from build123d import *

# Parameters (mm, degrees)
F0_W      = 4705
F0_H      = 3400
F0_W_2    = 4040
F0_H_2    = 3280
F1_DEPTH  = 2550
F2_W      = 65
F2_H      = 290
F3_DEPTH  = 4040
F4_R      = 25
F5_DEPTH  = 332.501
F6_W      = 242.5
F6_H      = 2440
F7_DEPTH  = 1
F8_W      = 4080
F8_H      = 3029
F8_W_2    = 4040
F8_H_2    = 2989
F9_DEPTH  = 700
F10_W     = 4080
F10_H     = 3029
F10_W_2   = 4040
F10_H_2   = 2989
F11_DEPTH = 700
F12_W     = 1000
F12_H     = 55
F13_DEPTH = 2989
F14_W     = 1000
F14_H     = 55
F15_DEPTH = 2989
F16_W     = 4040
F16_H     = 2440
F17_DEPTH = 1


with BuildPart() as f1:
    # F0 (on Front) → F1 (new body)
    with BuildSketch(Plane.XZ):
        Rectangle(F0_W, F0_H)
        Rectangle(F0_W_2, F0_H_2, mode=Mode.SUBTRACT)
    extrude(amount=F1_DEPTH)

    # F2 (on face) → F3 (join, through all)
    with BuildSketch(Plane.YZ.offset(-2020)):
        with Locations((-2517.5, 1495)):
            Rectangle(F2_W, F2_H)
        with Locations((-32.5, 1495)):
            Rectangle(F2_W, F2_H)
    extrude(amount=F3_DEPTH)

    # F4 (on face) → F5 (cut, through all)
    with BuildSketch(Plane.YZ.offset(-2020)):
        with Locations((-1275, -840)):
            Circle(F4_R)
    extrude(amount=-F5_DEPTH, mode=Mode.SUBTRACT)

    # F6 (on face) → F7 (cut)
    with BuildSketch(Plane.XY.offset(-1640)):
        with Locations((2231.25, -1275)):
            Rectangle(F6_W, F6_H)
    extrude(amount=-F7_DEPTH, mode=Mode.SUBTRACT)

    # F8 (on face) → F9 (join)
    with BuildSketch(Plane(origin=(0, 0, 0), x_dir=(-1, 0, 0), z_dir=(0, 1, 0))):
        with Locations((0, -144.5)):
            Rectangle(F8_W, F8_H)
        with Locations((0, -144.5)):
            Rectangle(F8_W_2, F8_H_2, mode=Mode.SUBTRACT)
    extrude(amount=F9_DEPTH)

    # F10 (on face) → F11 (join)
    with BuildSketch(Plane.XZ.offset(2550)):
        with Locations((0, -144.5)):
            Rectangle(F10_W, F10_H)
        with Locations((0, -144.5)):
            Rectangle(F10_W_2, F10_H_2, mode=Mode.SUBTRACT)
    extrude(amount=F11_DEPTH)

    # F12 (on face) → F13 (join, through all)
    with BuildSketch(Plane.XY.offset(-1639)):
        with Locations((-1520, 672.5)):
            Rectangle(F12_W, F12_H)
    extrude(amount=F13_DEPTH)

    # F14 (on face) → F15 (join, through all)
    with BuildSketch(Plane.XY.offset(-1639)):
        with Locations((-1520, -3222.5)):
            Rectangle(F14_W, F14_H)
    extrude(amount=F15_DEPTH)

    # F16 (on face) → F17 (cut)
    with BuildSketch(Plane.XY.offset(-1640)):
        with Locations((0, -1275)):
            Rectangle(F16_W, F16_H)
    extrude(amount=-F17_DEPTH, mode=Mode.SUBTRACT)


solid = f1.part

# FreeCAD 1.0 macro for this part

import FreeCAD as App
import Part
import Sketcher
from FreeCAD import Vector
Q = App.Units.Quantity

doc = App.newDocument("Part")
params = doc.addObject("Spreadsheet::Sheet", "Params")
for row, (alias, value) in enumerate([
    ("sketch1_width", "4705 mm"),
    ("sketch1_width2", "4040 mm"),
    ("sketch1_height", "3400 mm"),
    ("sketch1_height2", "3280 mm"),
    ("pad1_length", "2550 mm"),
    ("sketch2_width", "65 mm"),
    ("sketch2_height", "290 mm"),
    ("sketch3_diameter", "50 mm"),
    ("sketch4_height", "2440 mm"),
    ("sketch4_width", "242.5 mm"),
    ("pocket2_length", "1 mm"),
    ("sketch5_width", "4080 mm"),
    ("sketch5_width2", "4040 mm"),
    ("sketch5_height", "3029 mm"),
    ("sketch5_height2", "2989 mm"),
    ("pad3_length", "700 mm"),
    ("sketch6_width", "4080 mm"),
    ("sketch6_width2", "4040 mm"),
    ("sketch6_height", "3029 mm"),
    ("sketch6_height2", "2989 mm"),
    ("pad4_length", "700 mm"),
    ("sketch7_width", "1000 mm"),
    ("sketch7_height", "55 mm"),
    ("sketch8_width", "1000 mm"),
    ("sketch8_height", "55 mm"),
    ("sketch9_width", "4040 mm"),
    ("sketch9_height", "2440 mm"),
    ("pocket3_length", "1 mm"),
], start=1):
    params.set(f"A{row}", alias)
    params.set(f"B{row}", "=" + value)
    params.setAlias(f"B{row}", alias)

body = doc.addObject("PartDesign::Body", "Body")

# Sketch on XZ plane
sketch1 = doc.addObject("Sketcher::SketchObject", "Sketch")
body.addObject(sketch1)
sketch1.AttachmentSupport = (doc.XZ_Plane, [""])
sketch1.MapMode = "FlatFace"
sketch1.addGeometry(Part.LineSegment(Vector(-2352, 1700, 0), Vector(-2352, -1700, 0)), False)
sketch1.addGeometry(Part.LineSegment(Vector(-2352, -1700, 0), Vector(2352, -1700, 0)), False)
sketch1.addGeometry(Part.LineSegment(Vector(2352, -1700, 0), Vector(2352, 1700, 0)), False)
sketch1.addGeometry(Part.LineSegment(Vector(2352, 1700, 0), Vector(-2352, 1700, 0)), False)
sketch1.addGeometry(Part.LineSegment(Vector(2020, -1640, 0), Vector(-2020, -1640, 0)), False)
sketch1.addGeometry(Part.LineSegment(Vector(-2020, -1640, 0), Vector(-2020, 1640, 0)), False)
sketch1.addGeometry(Part.LineSegment(Vector(-2020, 1640, 0), Vector(2020, 1640, 0)), False)
sketch1.addGeometry(Part.LineSegment(Vector(2020, 1640, 0), Vector(2020, -1640, 0)), False)
sketch1.addConstraint(Sketcher.Constraint("Coincident", 0, 2, 1, 1))
sketch1.addConstraint(Sketcher.Constraint("Coincident", 1, 2, 2, 1))
sketch1.addConstraint(Sketcher.Constraint("Coincident", 2, 2, 3, 1))
sketch1.addConstraint(Sketcher.Constraint("Coincident", 3, 2, 0, 1))
sketch1.addConstraint(Sketcher.Constraint("Coincident", 4, 2, 5, 1))
sketch1.addConstraint(Sketcher.Constraint("Coincident", 5, 2, 6, 1))
sketch1.addConstraint(Sketcher.Constraint("Coincident", 6, 2, 7, 1))
sketch1.addConstraint(Sketcher.Constraint("Coincident", 7, 2, 4, 1))
sketch1.addConstraint(Sketcher.Constraint("Vertical", 0))
sketch1.addConstraint(Sketcher.Constraint("Horizontal", 1))
sketch1.addConstraint(Sketcher.Constraint("Vertical", 2))
sketch1.addConstraint(Sketcher.Constraint("Horizontal", 3))
sketch1.addConstraint(Sketcher.Constraint("Horizontal", 4))
sketch1.addConstraint(Sketcher.Constraint("Vertical", 5))
sketch1.addConstraint(Sketcher.Constraint("Horizontal", 6))
sketch1.addConstraint(Sketcher.Constraint("Vertical", 7))
sketch1.addConstraint(Sketcher.Constraint("Symmetric", 0, 2, 2, 2, -1, 1))
sketch1.addConstraint(Sketcher.Constraint("Symmetric", 4, 2, 6, 2, -1, 1))
sketch1.addConstraint(Sketcher.Constraint("DistanceX", 1, 1, 1, 2, Q("4705 mm")))
sketch1.addConstraint(Sketcher.Constraint("DistanceX", 4, 2, 4, 1, Q("4040 mm")))
sketch1.addConstraint(Sketcher.Constraint("DistanceY", 0, 2, 0, 1, Q("3400 mm")))
sketch1.addConstraint(Sketcher.Constraint("DistanceY", 5, 1, 5, 2, Q("3280 mm")))
sketch1.setExpression("Constraints[18]", "Params.sketch1_width")
sketch1.setExpression("Constraints[19]", "Params.sketch1_width2")
sketch1.setExpression("Constraints[20]", "Params.sketch1_height")
sketch1.setExpression("Constraints[21]", "Params.sketch1_height2")
pad1 = doc.addObject("PartDesign::Pad", "Pad")
body.addObject(pad1)
pad1.Profile = sketch1
pad1.setExpression("Length", "Params.pad1_length")

# Sketch on YZ plane
sketch2 = doc.addObject("Sketcher::SketchObject", "Sketch001")
body.addObject(sketch2)
sketch2.AttachmentSupport = (doc.YZ_Plane, [""])
sketch2.MapMode = "FlatFace"
sketch2.AttachmentOffset = App.Placement(Vector(0, 0, -2020), App.Rotation())
sketch2.addGeometry(Part.LineSegment(Vector(-2550, 1640, 0), Vector(-2550, 1350, 0)), False)
sketch2.addGeometry(Part.LineSegment(Vector(-2550, 1350, 0), Vector(-2485, 1350, 0)), False)
sketch2.addGeometry(Part.LineSegment(Vector(-2485, 1350, 0), Vector(-2485, 1640, 0)), False)
sketch2.addGeometry(Part.LineSegment(Vector(-2485, 1640, 0), Vector(-2550, 1640, 0)), False)
sketch2.addGeometry(Part.LineSegment(Vector(-65, 1640, 0), Vector(-65, 1350, 0)), False)
sketch2.addGeometry(Part.LineSegment(Vector(-65, 1350, 0), Vector(0, 1350, 0)), False)
sketch2.addGeometry(Part.LineSegment(Vector(0, 1350, 0), Vector(0, 1640, 0)), False)
sketch2.addGeometry(Part.LineSegment(Vector(0, 1640, 0), Vector(-65, 1640, 0)), False)
sketch2.addConstraint(Sketcher.Constraint("Coincident", 0, 2, 1, 1))
sketch2.addConstraint(Sketcher.Constraint("Coincident", 1, 2, 2, 1))
sketch2.addConstraint(Sketcher.Constraint("Coincident", 2, 2, 3, 1))
sketch2.addConstraint(Sketcher.Constraint("Coincident", 3, 2, 0, 1))
sketch2.addConstraint(Sketcher.Constraint("Coincident", 4, 2, 5, 1))
sketch2.addConstraint(Sketcher.Constraint("Coincident", 5, 2, 6, 1))
sketch2.addConstraint(Sketcher.Constraint("Coincident", 6, 2, 7, 1))
sketch2.addConstraint(Sketcher.Constraint("Coincident", 7, 2, 4, 1))
sketch2.addConstraint(Sketcher.Constraint("Vertical", 0))
sketch2.addConstraint(Sketcher.Constraint("Horizontal", 1))
sketch2.addConstraint(Sketcher.Constraint("Vertical", 2))
sketch2.addConstraint(Sketcher.Constraint("Horizontal", 3))
sketch2.addConstraint(Sketcher.Constraint("Vertical", 4))
sketch2.addConstraint(Sketcher.Constraint("Horizontal", 5))
sketch2.addConstraint(Sketcher.Constraint("Vertical", 6))
sketch2.addConstraint(Sketcher.Constraint("Horizontal", 7))
sketch2.addConstraint(Sketcher.Constraint("PointOnObject", 5, 2, -2))
sketch2.addConstraint(Sketcher.Constraint("Horizontal", 1, 2, 4, 2))
sketch2.addConstraint(Sketcher.Constraint("Horizontal", 3, 2, 6, 2))
sketch2.addConstraint(Sketcher.Constraint("Equal", 3, 5))
sketch2.addConstraint(Sketcher.Constraint("DistanceX", 1, 1, 1, 2, Q("65 mm")))
sketch2.addConstraint(Sketcher.Constraint("DistanceY", 0, 2, 0, 1, Q("290 mm")))
sketch2.addConstraint(Sketcher.Constraint("DistanceX", 0, 2, -1, 1, Q("2550 mm")))
sketch2.addConstraint(Sketcher.Constraint("DistanceY", -1, 1, 0, 2, Q("1350 mm")))
sketch2.setExpression("Constraints[20]", "Params.sketch2_width")
sketch2.setExpression("Constraints[21]", "Params.sketch2_height")
pad2 = doc.addObject("PartDesign::Pad", "Pad001")
body.addObject(pad2)
pad2.Profile = sketch2
pad2.Type = "UpToLast"

# Sketch on YZ plane
sketch3 = doc.addObject("Sketcher::SketchObject", "Sketch002")
body.addObject(sketch3)
sketch3.AttachmentSupport = (doc.YZ_Plane, [""])
sketch3.MapMode = "FlatFace"
sketch3.AttachmentOffset = App.Placement(Vector(0, 0, -2020), App.Rotation())
sketch3.addGeometry(Part.Circle(Vector(-1275, -840, 0), Vector(0, 0, 1), 25), False)
sketch3.addConstraint(Sketcher.Constraint("Diameter", 0, Q("50 mm")))
sketch3.addConstraint(Sketcher.Constraint("DistanceX", 0, 3, -1, 1, Q("1275 mm")))
sketch3.addConstraint(Sketcher.Constraint("DistanceY", 0, 3, -1, 1, Q("840 mm")))
sketch3.setExpression("Constraints[0]", "Params.sketch3_diameter")
pocket1 = doc.addObject("PartDesign::Pocket", "Pocket")
body.addObject(pocket1)
pocket1.Profile = sketch3
pocket1.Type = "ThroughAll"

# Sketch on XY plane
sketch4 = doc.addObject("Sketcher::SketchObject", "Sketch003")
body.addObject(sketch4)
sketch4.AttachmentSupport = (doc.XY_Plane, [""])
sketch4.MapMode = "FlatFace"
sketch4.AttachmentOffset = App.Placement(Vector(0, 0, -1640), App.Rotation())
sketch4.addGeometry(Part.LineSegment(Vector(2110, -55, 0), Vector(2110, -2495, 0)), False)
sketch4.addGeometry(Part.LineSegment(Vector(2110, -2495, 0), Vector(2352, -2495, 0)), False)
sketch4.addGeometry(Part.LineSegment(Vector(2352, -2495, 0), Vector(2352, -55, 0)), False)
sketch4.addGeometry(Part.LineSegment(Vector(2352, -55, 0), Vector(2110, -55, 0)), False)
sketch4.addConstraint(Sketcher.Constraint("Coincident", 0, 2, 1, 1))
sketch4.addConstraint(Sketcher.Constraint("Coincident", 1, 2, 2, 1))
sketch4.addConstraint(Sketcher.Constraint("Coincident", 2, 2, 3, 1))
sketch4.addConstraint(Sketcher.Constraint("Coincident", 3, 2, 0, 1))
sketch4.addConstraint(Sketcher.Constraint("Vertical", 0))
sketch4.addConstraint(Sketcher.Constraint("Horizontal", 1))
sketch4.addConstraint(Sketcher.Constraint("Vertical", 2))
sketch4.addConstraint(Sketcher.Constraint("Horizontal", 3))
sketch4.addConstraint(Sketcher.Constraint("DistanceY", 0, 2, 0, 1, Q("2440 mm")))
sketch4.addConstraint(Sketcher.Constraint("DistanceX", 1, 1, 1, 2, Q("242.5 mm")))
sketch4.addConstraint(Sketcher.Constraint("DistanceX", -1, 1, 0, 2, Q("2110 mm")))
sketch4.addConstraint(Sketcher.Constraint("DistanceY", 0, 2, -1, 1, Q("2495 mm")))
sketch4.setExpression("Constraints[8]", "Params.sketch4_height")
sketch4.setExpression("Constraints[9]", "Params.sketch4_width")
pocket2 = doc.addObject("PartDesign::Pocket", "Pocket001")
body.addObject(pocket2)
pocket2.Profile = sketch4
pocket2.setExpression("Length", "Params.pocket2_length")

# Sketch on XZ plane
sketch5 = doc.addObject("Sketcher::SketchObject", "Sketch004")
body.addObject(sketch5)
sketch5.AttachmentSupport = (doc.XZ_Plane, [""])
sketch5.MapMode = "FlatFace"
sketch5.addGeometry(Part.LineSegment(Vector(2040, 1370, 0), Vector(2040, -1659, 0)), False)
sketch5.addGeometry(Part.LineSegment(Vector(2040, -1659, 0), Vector(-2040, -1659, 0)), False)
sketch5.addGeometry(Part.LineSegment(Vector(-2040, -1659, 0), Vector(-2040, 1370, 0)), False)
sketch5.addGeometry(Part.LineSegment(Vector(-2040, 1370, 0), Vector(2040, 1370, 0)), False)
sketch5.addGeometry(Part.LineSegment(Vector(-2020, -1639, 0), Vector(2020, -1639, 0)), False)
sketch5.addGeometry(Part.LineSegment(Vector(2020, -1639, 0), Vector(2020, 1350, 0)), False)
sketch5.addGeometry(Part.LineSegment(Vector(2020, 1350, 0), Vector(-2020, 1350, 0)), False)
sketch5.addGeometry(Part.LineSegment(Vector(-2020, 1350, 0), Vector(-2020, -1639, 0)), False)
sketch5.addConstraint(Sketcher.Constraint("Coincident", 0, 2, 1, 1))
sketch5.addConstraint(Sketcher.Constraint("Coincident", 1, 2, 2, 1))
sketch5.addConstraint(Sketcher.Constraint("Coincident", 2, 2, 3, 1))
sketch5.addConstraint(Sketcher.Constraint("Coincident", 3, 2, 0, 1))
sketch5.addConstraint(Sketcher.Constraint("Coincident", 4, 2, 5, 1))
sketch5.addConstraint(Sketcher.Constraint("Coincident", 5, 2, 6, 1))
sketch5.addConstraint(Sketcher.Constraint("Coincident", 6, 2, 7, 1))
sketch5.addConstraint(Sketcher.Constraint("Coincident", 7, 2, 4, 1))
sketch5.addConstraint(Sketcher.Constraint("Vertical", 0))
sketch5.addConstraint(Sketcher.Constraint("Horizontal", 1))
sketch5.addConstraint(Sketcher.Constraint("Vertical", 2))
sketch5.addConstraint(Sketcher.Constraint("Horizontal", 3))
sketch5.addConstraint(Sketcher.Constraint("Horizontal", 4))
sketch5.addConstraint(Sketcher.Constraint("Vertical", 5))
sketch5.addConstraint(Sketcher.Constraint("Horizontal", 6))
sketch5.addConstraint(Sketcher.Constraint("Vertical", 7))
sketch5.addConstraint(Sketcher.Constraint("DistanceX", 1, 2, 1, 1, Q("4080 mm")))
sketch5.addConstraint(Sketcher.Constraint("DistanceX", 4, 1, 4, 2, Q("4040 mm")))
sketch5.addConstraint(Sketcher.Constraint("DistanceY", 0, 2, 0, 1, Q("3029 mm")))
sketch5.addConstraint(Sketcher.Constraint("DistanceY", 5, 1, 5, 2, Q("2989 mm")))
sketch5.addConstraint(Sketcher.Constraint("DistanceX", -1, 1, 0, 2, Q("2040 mm")))
sketch5.addConstraint(Sketcher.Constraint("DistanceY", 0, 2, -1, 1, Q("1659 mm")))
sketch5.addConstraint(Sketcher.Constraint("DistanceX", -1, 1, 4, 2, Q("2020 mm")))
sketch5.addConstraint(Sketcher.Constraint("DistanceY", 4, 2, -1, 1, Q("1639 mm")))
sketch5.setExpression("Constraints[16]", "Params.sketch5_width")
sketch5.setExpression("Constraints[17]", "Params.sketch5_width2")
sketch5.setExpression("Constraints[18]", "Params.sketch5_height")
sketch5.setExpression("Constraints[19]", "Params.sketch5_height2")
pad3 = doc.addObject("PartDesign::Pad", "Pad002")
body.addObject(pad3)
pad3.Profile = sketch5
pad3.setExpression("Length", "Params.pad3_length")
pad3.Reversed = True

# Sketch on XZ plane
sketch6 = doc.addObject("Sketcher::SketchObject", "Sketch005")
body.addObject(sketch6)
sketch6.AttachmentSupport = (doc.XZ_Plane, [""])
sketch6.MapMode = "FlatFace"
sketch6.AttachmentOffset = App.Placement(Vector(0, 0, 2550), App.Rotation())
sketch6.addGeometry(Part.LineSegment(Vector(-2040, 1370, 0), Vector(-2040, -1659, 0)), False)
sketch6.addGeometry(Part.LineSegment(Vector(-2040, -1659, 0), Vector(2040, -1659, 0)), False)
sketch6.addGeometry(Part.LineSegment(Vector(2040, -1659, 0), Vector(2040, 1370, 0)), False)
sketch6.addGeometry(Part.LineSegment(Vector(2040, 1370, 0), Vector(-2040, 1370, 0)), False)
sketch6.addGeometry(Part.LineSegment(Vector(2020, -1639, 0), Vector(-2020, -1639, 0)), False)
sketch6.addGeometry(Part.LineSegment(Vector(-2020, -1639, 0), Vector(-2020, 1350, 0)), False)
sketch6.addGeometry(Part.LineSegment(Vector(-2020, 1350, 0), Vector(2020, 1350, 0)), False)
sketch6.addGeometry(Part.LineSegment(Vector(2020, 1350, 0), Vector(2020, -1639, 0)), False)
sketch6.addConstraint(Sketcher.Constraint("Coincident", 0, 2, 1, 1))
sketch6.addConstraint(Sketcher.Constraint("Coincident", 1, 2, 2, 1))
sketch6.addConstraint(Sketcher.Constraint("Coincident", 2, 2, 3, 1))
sketch6.addConstraint(Sketcher.Constraint("Coincident", 3, 2, 0, 1))
sketch6.addConstraint(Sketcher.Constraint("Coincident", 4, 2, 5, 1))
sketch6.addConstraint(Sketcher.Constraint("Coincident", 5, 2, 6, 1))
sketch6.addConstraint(Sketcher.Constraint("Coincident", 6, 2, 7, 1))
sketch6.addConstraint(Sketcher.Constraint("Coincident", 7, 2, 4, 1))
sketch6.addConstraint(Sketcher.Constraint("Vertical", 0))
sketch6.addConstraint(Sketcher.Constraint("Horizontal", 1))
sketch6.addConstraint(Sketcher.Constraint("Vertical", 2))
sketch6.addConstraint(Sketcher.Constraint("Horizontal", 3))
sketch6.addConstraint(Sketcher.Constraint("Horizontal", 4))
sketch6.addConstraint(Sketcher.Constraint("Vertical", 5))
sketch6.addConstraint(Sketcher.Constraint("Horizontal", 6))
sketch6.addConstraint(Sketcher.Constraint("Vertical", 7))
sketch6.addConstraint(Sketcher.Constraint("DistanceX", 1, 1, 1, 2, Q("4080 mm")))
sketch6.addConstraint(Sketcher.Constraint("DistanceX", 4, 2, 4, 1, Q("4040 mm")))
sketch6.addConstraint(Sketcher.Constraint("DistanceY", 0, 2, 0, 1, Q("3029 mm")))
sketch6.addConstraint(Sketcher.Constraint("DistanceY", 5, 1, 5, 2, Q("2989 mm")))
sketch6.addConstraint(Sketcher.Constraint("DistanceX", 0, 2, -1, 1, Q("2040 mm")))
sketch6.addConstraint(Sketcher.Constraint("DistanceY", 0, 2, -1, 1, Q("1659 mm")))
sketch6.addConstraint(Sketcher.Constraint("DistanceX", 4, 2, -1, 1, Q("2020 mm")))
sketch6.addConstraint(Sketcher.Constraint("DistanceY", 4, 2, -1, 1, Q("1639 mm")))
sketch6.setExpression("Constraints[16]", "Params.sketch6_width")
sketch6.setExpression("Constraints[17]", "Params.sketch6_width2")
sketch6.setExpression("Constraints[18]", "Params.sketch6_height")
sketch6.setExpression("Constraints[19]", "Params.sketch6_height2")
pad4 = doc.addObject("PartDesign::Pad", "Pad003")
body.addObject(pad4)
pad4.Profile = sketch6
pad4.setExpression("Length", "Params.pad4_length")

# Sketch on XY plane
sketch7 = doc.addObject("Sketcher::SketchObject", "Sketch006")
body.addObject(sketch7)
sketch7.AttachmentSupport = (doc.XY_Plane, [""])
sketch7.MapMode = "FlatFace"
sketch7.AttachmentOffset = App.Placement(Vector(0, 0, -1639), App.Rotation())
sketch7.addGeometry(Part.LineSegment(Vector(-2020, 700, 0), Vector(-2020, 645, 0)), False)
sketch7.addGeometry(Part.LineSegment(Vector(-2020, 645, 0), Vector(-1020, 645, 0)), False)
sketch7.addGeometry(Part.LineSegment(Vector(-1020, 645, 0), Vector(-1020, 700, 0)), False)
sketch7.addGeometry(Part.LineSegment(Vector(-1020, 700, 0), Vector(-2020, 700, 0)), False)
sketch7.addConstraint(Sketcher.Constraint("Coincident", 0, 2, 1, 1))
sketch7.addConstraint(Sketcher.Constraint("Coincident", 1, 2, 2, 1))
sketch7.addConstraint(Sketcher.Constraint("Coincident", 2, 2, 3, 1))
sketch7.addConstraint(Sketcher.Constraint("Coincident", 3, 2, 0, 1))
sketch7.addConstraint(Sketcher.Constraint("Vertical", 0))
sketch7.addConstraint(Sketcher.Constraint("Horizontal", 1))
sketch7.addConstraint(Sketcher.Constraint("Vertical", 2))
sketch7.addConstraint(Sketcher.Constraint("Horizontal", 3))
sketch7.addConstraint(Sketcher.Constraint("DistanceX", 1, 1, 1, 2, Q("1000 mm")))
sketch7.addConstraint(Sketcher.Constraint("DistanceY", 0, 2, 0, 1, Q("55 mm")))
sketch7.addConstraint(Sketcher.Constraint("DistanceX", 0, 2, -1, 1, Q("2020 mm")))
sketch7.addConstraint(Sketcher.Constraint("DistanceY", -1, 1, 0, 2, Q("645 mm")))
sketch7.setExpression("Constraints[8]", "Params.sketch7_width")
sketch7.setExpression("Constraints[9]", "Params.sketch7_height")
pad5 = doc.addObject("PartDesign::Pad", "Pad004")
body.addObject(pad5)
pad5.Profile = sketch7
pad5.Type = "UpToLast"

# Sketch on XY plane
sketch8 = doc.addObject("Sketcher::SketchObject", "Sketch007")
body.addObject(sketch8)
sketch8.AttachmentSupport = (doc.XY_Plane, [""])
sketch8.MapMode = "FlatFace"
sketch8.AttachmentOffset = App.Placement(Vector(0, 0, -1639), App.Rotation())
sketch8.addGeometry(Part.LineSegment(Vector(-2020, -3195, 0), Vector(-2020, -3250, 0)), False)
sketch8.addGeometry(Part.LineSegment(Vector(-2020, -3250, 0), Vector(-1020, -3250, 0)), False)
sketch8.addGeometry(Part.LineSegment(Vector(-1020, -3250, 0), Vector(-1020, -3195, 0)), False)
sketch8.addGeometry(Part.LineSegment(Vector(-1020, -3195, 0), Vector(-2020, -3195, 0)), False)
sketch8.addConstraint(Sketcher.Constraint("Coincident", 0, 2, 1, 1))
sketch8.addConstraint(Sketcher.Constraint("Coincident", 1, 2, 2, 1))
sketch8.addConstraint(Sketcher.Constraint("Coincident", 2, 2, 3, 1))
sketch8.addConstraint(Sketcher.Constraint("Coincident", 3, 2, 0, 1))
sketch8.addConstraint(Sketcher.Constraint("Vertical", 0))
sketch8.addConstraint(Sketcher.Constraint("Horizontal", 1))
sketch8.addConstraint(Sketcher.Constraint("Vertical", 2))
sketch8.addConstraint(Sketcher.Constraint("Horizontal", 3))
sketch8.addConstraint(Sketcher.Constraint("DistanceX", 1, 1, 1, 2, Q("1000 mm")))
sketch8.addConstraint(Sketcher.Constraint("DistanceY", 0, 2, 0, 1, Q("55 mm")))
sketch8.addConstraint(Sketcher.Constraint("DistanceX", 0, 2, -1, 1, Q("2020 mm")))
sketch8.addConstraint(Sketcher.Constraint("DistanceY", 0, 2, -1, 1, Q("3250 mm")))
sketch8.setExpression("Constraints[8]", "Params.sketch8_width")
sketch8.setExpression("Constraints[9]", "Params.sketch8_height")
pad6 = doc.addObject("PartDesign::Pad", "Pad005")
body.addObject(pad6)
pad6.Profile = sketch8
pad6.Type = "UpToLast"

# Sketch on XY plane
sketch9 = doc.addObject("Sketcher::SketchObject", "Sketch008")
body.addObject(sketch9)
sketch9.AttachmentSupport = (doc.XY_Plane, [""])
sketch9.MapMode = "FlatFace"
sketch9.AttachmentOffset = App.Placement(Vector(0, 0, -1640), App.Rotation())
sketch9.addGeometry(Part.LineSegment(Vector(-2020, -55, 0), Vector(-2020, -2495, 0)), False)
sketch9.addGeometry(Part.LineSegment(Vector(-2020, -2495, 0), Vector(2020, -2495, 0)), False)
sketch9.addGeometry(Part.LineSegment(Vector(2020, -2495, 0), Vector(2020, -55, 0)), False)
sketch9.addGeometry(Part.LineSegment(Vector(2020, -55, 0), Vector(-2020, -55, 0)), False)
sketch9.addConstraint(Sketcher.Constraint("Coincident", 0, 2, 1, 1))
sketch9.addConstraint(Sketcher.Constraint("Coincident", 1, 2, 2, 1))
sketch9.addConstraint(Sketcher.Constraint("Coincident", 2, 2, 3, 1))
sketch9.addConstraint(Sketcher.Constraint("Coincident", 3, 2, 0, 1))
sketch9.addConstraint(Sketcher.Constraint("Vertical", 0))
sketch9.addConstraint(Sketcher.Constraint("Horizontal", 1))
sketch9.addConstraint(Sketcher.Constraint("Vertical", 2))
sketch9.addConstraint(Sketcher.Constraint("Horizontal", 3))
sketch9.addConstraint(Sketcher.Constraint("DistanceX", 1, 1, 1, 2, Q("4040 mm")))
sketch9.addConstraint(Sketcher.Constraint("DistanceY", 0, 2, 0, 1, Q("2440 mm")))
sketch9.addConstraint(Sketcher.Constraint("DistanceX", 0, 2, -1, 1, Q("2020 mm")))
sketch9.addConstraint(Sketcher.Constraint("DistanceY", 0, 2, -1, 1, Q("2495 mm")))
sketch9.setExpression("Constraints[8]", "Params.sketch9_width")
sketch9.setExpression("Constraints[9]", "Params.sketch9_height")
pocket3 = doc.addObject("PartDesign::Pocket", "Pocket002")
body.addObject(pocket3)
pocket3.Profile = sketch9
pocket3.setExpression("Length", "Params.pocket3_length")

doc.recompute()
